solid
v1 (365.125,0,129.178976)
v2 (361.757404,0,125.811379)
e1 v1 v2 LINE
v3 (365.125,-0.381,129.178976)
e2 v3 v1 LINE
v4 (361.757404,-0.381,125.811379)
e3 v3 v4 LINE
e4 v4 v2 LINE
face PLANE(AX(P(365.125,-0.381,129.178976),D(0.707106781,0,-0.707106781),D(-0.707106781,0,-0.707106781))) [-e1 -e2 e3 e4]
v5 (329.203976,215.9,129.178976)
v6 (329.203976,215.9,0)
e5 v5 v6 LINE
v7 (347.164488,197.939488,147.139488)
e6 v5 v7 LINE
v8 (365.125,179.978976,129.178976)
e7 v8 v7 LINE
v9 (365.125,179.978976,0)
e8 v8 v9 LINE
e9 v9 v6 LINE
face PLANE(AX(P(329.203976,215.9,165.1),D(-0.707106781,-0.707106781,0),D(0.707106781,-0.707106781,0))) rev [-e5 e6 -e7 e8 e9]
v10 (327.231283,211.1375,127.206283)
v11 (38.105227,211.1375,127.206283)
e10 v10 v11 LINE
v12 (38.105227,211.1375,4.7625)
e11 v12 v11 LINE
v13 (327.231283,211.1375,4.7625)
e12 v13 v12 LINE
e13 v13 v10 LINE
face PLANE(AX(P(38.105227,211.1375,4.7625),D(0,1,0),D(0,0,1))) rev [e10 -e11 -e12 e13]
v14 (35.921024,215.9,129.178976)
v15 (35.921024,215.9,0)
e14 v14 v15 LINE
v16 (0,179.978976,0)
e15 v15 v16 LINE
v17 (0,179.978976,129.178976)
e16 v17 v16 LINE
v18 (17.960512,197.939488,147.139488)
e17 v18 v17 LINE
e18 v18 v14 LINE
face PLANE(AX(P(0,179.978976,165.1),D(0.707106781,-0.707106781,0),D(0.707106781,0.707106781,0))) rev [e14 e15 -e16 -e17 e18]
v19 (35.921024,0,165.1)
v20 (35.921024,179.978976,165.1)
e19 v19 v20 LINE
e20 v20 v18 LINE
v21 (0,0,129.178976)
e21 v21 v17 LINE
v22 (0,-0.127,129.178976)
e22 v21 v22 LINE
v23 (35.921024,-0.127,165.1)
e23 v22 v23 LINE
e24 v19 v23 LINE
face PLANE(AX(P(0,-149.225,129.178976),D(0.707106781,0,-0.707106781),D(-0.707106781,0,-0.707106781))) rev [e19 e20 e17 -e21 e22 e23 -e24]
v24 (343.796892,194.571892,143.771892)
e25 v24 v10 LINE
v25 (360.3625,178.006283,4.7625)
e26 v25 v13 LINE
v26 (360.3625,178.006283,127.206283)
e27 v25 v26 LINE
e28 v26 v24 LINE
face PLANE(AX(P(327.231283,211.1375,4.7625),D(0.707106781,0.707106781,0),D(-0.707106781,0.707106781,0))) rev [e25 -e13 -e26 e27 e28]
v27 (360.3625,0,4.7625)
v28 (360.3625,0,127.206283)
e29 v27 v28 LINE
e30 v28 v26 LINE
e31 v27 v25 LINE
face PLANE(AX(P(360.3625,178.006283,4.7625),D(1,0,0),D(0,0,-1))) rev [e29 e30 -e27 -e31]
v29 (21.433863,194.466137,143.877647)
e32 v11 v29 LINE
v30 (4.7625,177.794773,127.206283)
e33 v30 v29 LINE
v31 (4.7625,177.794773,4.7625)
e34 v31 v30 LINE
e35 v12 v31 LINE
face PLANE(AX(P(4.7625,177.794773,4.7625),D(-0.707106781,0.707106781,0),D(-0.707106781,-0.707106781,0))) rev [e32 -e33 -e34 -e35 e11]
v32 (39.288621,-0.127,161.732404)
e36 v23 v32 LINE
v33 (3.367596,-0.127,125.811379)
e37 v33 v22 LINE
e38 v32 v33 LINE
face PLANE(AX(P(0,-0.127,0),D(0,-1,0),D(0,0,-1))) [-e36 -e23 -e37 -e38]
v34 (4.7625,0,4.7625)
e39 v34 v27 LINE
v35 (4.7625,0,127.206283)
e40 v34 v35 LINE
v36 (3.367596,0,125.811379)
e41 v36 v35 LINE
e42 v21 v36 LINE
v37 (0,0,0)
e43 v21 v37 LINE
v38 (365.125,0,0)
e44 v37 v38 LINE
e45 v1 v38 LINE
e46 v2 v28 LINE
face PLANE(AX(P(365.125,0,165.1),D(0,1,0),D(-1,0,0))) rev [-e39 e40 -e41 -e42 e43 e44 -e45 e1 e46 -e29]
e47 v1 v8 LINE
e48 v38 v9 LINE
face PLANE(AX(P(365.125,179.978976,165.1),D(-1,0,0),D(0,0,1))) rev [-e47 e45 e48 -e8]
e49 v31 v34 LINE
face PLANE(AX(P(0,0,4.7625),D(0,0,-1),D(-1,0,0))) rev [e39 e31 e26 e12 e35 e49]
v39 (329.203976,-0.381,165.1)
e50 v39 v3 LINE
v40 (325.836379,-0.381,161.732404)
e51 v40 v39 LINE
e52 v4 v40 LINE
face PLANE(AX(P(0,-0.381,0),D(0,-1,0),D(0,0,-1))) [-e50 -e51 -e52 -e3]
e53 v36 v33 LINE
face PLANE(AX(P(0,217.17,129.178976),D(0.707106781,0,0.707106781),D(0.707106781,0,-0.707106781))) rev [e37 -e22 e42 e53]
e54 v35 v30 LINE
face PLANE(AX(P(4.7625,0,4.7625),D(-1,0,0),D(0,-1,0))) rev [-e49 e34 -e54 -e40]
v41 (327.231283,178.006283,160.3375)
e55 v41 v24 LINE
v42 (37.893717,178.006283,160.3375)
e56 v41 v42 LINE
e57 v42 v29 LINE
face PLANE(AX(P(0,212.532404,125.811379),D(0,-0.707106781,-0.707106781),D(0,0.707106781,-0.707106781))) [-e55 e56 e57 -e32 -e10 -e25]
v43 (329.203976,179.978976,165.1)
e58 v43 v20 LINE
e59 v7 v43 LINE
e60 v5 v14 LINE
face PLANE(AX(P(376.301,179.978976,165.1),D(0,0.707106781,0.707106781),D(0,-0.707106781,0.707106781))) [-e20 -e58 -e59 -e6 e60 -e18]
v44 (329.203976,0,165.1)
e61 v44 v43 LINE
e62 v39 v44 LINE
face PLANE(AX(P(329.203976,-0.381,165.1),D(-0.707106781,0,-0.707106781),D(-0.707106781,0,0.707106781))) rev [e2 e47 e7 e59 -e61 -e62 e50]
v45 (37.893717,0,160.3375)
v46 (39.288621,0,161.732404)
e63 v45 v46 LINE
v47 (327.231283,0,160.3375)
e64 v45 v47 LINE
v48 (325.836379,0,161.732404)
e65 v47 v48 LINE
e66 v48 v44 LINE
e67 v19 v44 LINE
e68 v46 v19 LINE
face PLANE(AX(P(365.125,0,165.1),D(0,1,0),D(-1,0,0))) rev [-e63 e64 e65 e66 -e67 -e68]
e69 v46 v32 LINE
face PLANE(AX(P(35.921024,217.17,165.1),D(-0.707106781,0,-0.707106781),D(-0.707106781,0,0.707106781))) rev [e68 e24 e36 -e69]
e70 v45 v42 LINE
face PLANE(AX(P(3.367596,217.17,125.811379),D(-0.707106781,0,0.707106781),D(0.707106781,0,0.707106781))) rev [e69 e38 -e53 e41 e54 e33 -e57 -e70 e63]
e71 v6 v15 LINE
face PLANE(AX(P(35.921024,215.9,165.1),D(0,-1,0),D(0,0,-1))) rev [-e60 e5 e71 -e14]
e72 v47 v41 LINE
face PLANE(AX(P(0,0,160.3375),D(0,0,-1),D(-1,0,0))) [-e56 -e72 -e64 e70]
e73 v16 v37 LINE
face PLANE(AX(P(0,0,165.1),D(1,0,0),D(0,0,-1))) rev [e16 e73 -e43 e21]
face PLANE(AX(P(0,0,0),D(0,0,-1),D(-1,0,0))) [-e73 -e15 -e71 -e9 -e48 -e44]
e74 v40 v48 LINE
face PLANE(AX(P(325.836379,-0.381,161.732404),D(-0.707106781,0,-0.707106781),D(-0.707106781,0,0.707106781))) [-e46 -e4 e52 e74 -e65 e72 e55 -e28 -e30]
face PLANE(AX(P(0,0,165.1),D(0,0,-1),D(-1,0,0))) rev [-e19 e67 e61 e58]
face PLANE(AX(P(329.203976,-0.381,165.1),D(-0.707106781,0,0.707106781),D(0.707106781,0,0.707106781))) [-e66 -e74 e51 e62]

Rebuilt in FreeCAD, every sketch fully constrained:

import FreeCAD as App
import Part
import Sketcher

V = App.Vector
Q = App.Units.Quantity


def add_polygon(sketch, points):
    """Adds a closed chain of lines whose ends are joined by coincident constraints."""
    first, n = sketch.GeometryCount, len(points)
    for a, b in zip(points, points[1:] + points[:1]):
        sketch.addGeometry(Part.LineSegment(App.Vector(*a, 0), App.Vector(*b, 0)), False)
    for i in range(n):
        sketch.addConstraint(Sketcher.Constraint("Coincident", first + i, 2, first + (i + 1) % n, 1))

doc = App.newDocument("Part")
params = doc.addObject("Spreadsheet::Sheet", "Params")
for row, (alias, value) in enumerate([
    ("sketch1_length", "2 in"),
    ("sketch1_width", "14.375 in"),
    ("pad1_length", "6.5 in"),
    ("sketch2_width", "14 in"),
    ("pocket1_length", "6.3125 in"),
    ("sketch3_length", "2 in"),
    ("sketch3_width", "14.375 in"),
    ("pad2_length", "0.1875 in"),
    ("sketch4_length", "2 in"),
    ("sketch5_length", "2 in"),
    ("sketch5_length2", "0.1875 in"),
    ("pad3_length", "14.375 in"),
    ("sketch6_length", "2 in"),
    ("pocket3_length", "14.375 in"),
    ("sketch7_length", "2 in"),
    ("pocket4_length", "14.375 in"),
    ("sketch8_length", "2 in"),
    ("sketch8_length2", "0.1875 in"),
    ("pad4_length", "0.05 in"),
    ("pad4_length2", "8.505 in"),
    ("sketch9_length", "2 in"),
    ("pocket5_length", "15.705 in"),
    ("sketch10_length", "2 in"),
    ("pocket6_length", "15.705 in"),
    ("sketch11_length", "2 in"),
    ("pocket7_length", "8.515 in"),
    ("sketch12_length", "2 in"),
    ("sketch12_length2", "0.1875 in"),
    ("pad5_length", "8.515 in"),
    ("sketch13_length", "2 in"),
    ("pocket8_length", "8.515 in"),
    ("sketch14_length", "2 in"),
    ("pocket9_length", "100 in"),
], start=1):
    params.set(f"A{row}", alias)
    params.set(f"B{row}", "=" + value)
    params.setAlias(f"B{row}", alias)

body = doc.addObject("PartDesign::Body", "Body")

# Sketch on XY plane
sketch1 = body.newObject("Sketcher::SketchObject", "Sketch")
sketch1.AttachmentSupport = (doc.getObject("XY_Plane"), [""])
sketch1.MapMode = "FlatFace"
add_polygon(sketch1, [(0, 180), (0, 0), (365, 0), (365, 180), (329, 216), (36, 216)])  # lines 0-5
sketch1.addConstraint(Sketcher.Constraint("Vertical", 0))
sketch1.addConstraint(Sketcher.Constraint("Horizontal", 1))
sketch1.addConstraint(Sketcher.Constraint("Vertical", 2))
sketch1.addConstraint(Sketcher.Constraint("Horizontal", 4))
sketch1.addConstraint(Sketcher.Constraint("Coincident", 0, 2, -1, 1))
sketch1.addConstraint(Sketcher.Constraint("Perpendicular", 3, 5))
sketch1.addConstraint(Sketcher.Constraint("Horizontal", 2, 2, 5, 2))
sketch1.addConstraint(Sketcher.Constraint("Equal", 3, 5))
sketch1.addConstraint(Sketcher.Constraint("Distance", 3, Q("2 in")))
sketch1.addConstraint(Sketcher.Constraint("DistanceY", -1, 1, 3, 2, Q("8.5 in")))
sketch1.addConstraint(Sketcher.Constraint("DistanceX", 1, 1, 1, 2, Q("14.375 in")))
sketch1.setExpression("Constraints[14]", "Params.sketch1_length")
sketch1.setExpression("Constraints[16]", "Params.sketch1_width")
pad1 = body.newObject("PartDesign::Pad", "Pad")
pad1.Profile = sketch1
pad1.setExpression("Length", "Params.pad1_length")

# Sketch on XY plane
sketch2 = body.newObject("Sketcher::SketchObject", "Sketch001")
sketch2.AttachmentSupport = (doc.getObject("XY_Plane"), [""])
sketch2.MapMode = "FlatFace"
sketch2.AttachmentOffset = App.Placement(V(0, 0, 6.5 * 25.4), App.Rotation())
add_polygon(sketch2, [(5, 178), (5, 0), (360, 0), (360, 178), (327, 211), (38, 211)])  # lines 0-5
sketch2.addConstraint(Sketcher.Constraint("Vertical", 0))
sketch2.addConstraint(Sketcher.Constraint("Horizontal", 1))
sketch2.addConstraint(Sketcher.Constraint("Vertical", 2))
sketch2.addConstraint(Sketcher.Constraint("Horizontal", 4))
sketch2.addConstraint(Sketcher.Constraint("PointOnObject", 0, 2, -1))
sketch2.addConstraint(Sketcher.Constraint("Perpendicular", 3, 5))
sketch2.addConstraint(Sketcher.Constraint("DistanceX", 1, 1, 1, 2, Q("14 in")))
sketch2.addConstraint(Sketcher.Constraint("Angle", 3, Q("135 deg")))
sketch2.addConstraint(Sketcher.Constraint("DistanceX", -1, 1, 0, 2, Q("0.1875 in")))
sketch2.addConstraint(Sketcher.Constraint("DistanceY", -1, 1, 3, 2, Q("8.3125 in")))
sketch2.addConstraint(Sketcher.Constraint("DistanceX", 4, 2, 4, 1, 289.126057))
sketch2.addConstraint(Sketcher.Constraint("DistanceY", 0, 2, 0, 1, 177.794773))
sketch2.setExpression("Constraints[12]", "Params.sketch2_width")
pocket1 = body.newObject("PartDesign::Pocket", "Pocket")
pocket1.Profile = sketch2
pocket1.setExpression("Length", "Params.pocket1_length")

# Sketch on XY plane
sketch3 = body.newObject("Sketcher::SketchObject", "Sketch002")
sketch3.AttachmentSupport = (doc.getObject("XY_Plane"), [""])
sketch3.MapMode = "FlatFace"
sketch3.AttachmentOffset = App.Placement(V(0, 0, 6.5 * 25.4), App.Rotation())
add_polygon(sketch3, [(0, 180), (0, 0), (365, 0), (365, 180), (329, 216), (36, 216)])  # lines 0-5
sketch3.addConstraint(Sketcher.Constraint("Vertical", 0))
sketch3.addConstraint(Sketcher.Constraint("Horizontal", 1))
sketch3.addConstraint(Sketcher.Constraint("Vertical", 2))
sketch3.addConstraint(Sketcher.Constraint("Horizontal", 4))
sketch3.addConstraint(Sketcher.Constraint("Coincident", 0, 2, -1, 1))
sketch3.addConstraint(Sketcher.Constraint("Perpendicular", 3, 5))
sketch3.addConstraint(Sketcher.Constraint("Horizontal", 2, 2, 5, 2))
sketch3.addConstraint(Sketcher.Constraint("Equal", 3, 5))
sketch3.addConstraint(Sketcher.Constraint("Distance", 3, Q("2 in")))
sketch3.addConstraint(Sketcher.Constraint("DistanceY", -1, 1, 3, 2, Q("8.5 in")))
sketch3.addConstraint(Sketcher.Constraint("DistanceX", 1, 1, 1, 2, Q("14.375 in")))
sketch3.setExpression("Constraints[14]", "Params.sketch3_length")
sketch3.setExpression("Constraints[16]", "Params.sketch3_width")
pad2 = body.newObject("PartDesign::Pad", "Pad001")
pad2.Profile = sketch3
pad2.setExpression("Length", "Params.pad2_length")
pad2.Reversed = True

# Sketch on YZ plane
sketch4 = body.newObject("Sketcher::SketchObject", "Sketch003")
sketch4.AttachmentSupport = (doc.getObject("YZ_Plane"), [""])
sketch4.MapMode = "FlatFace"
sketch4.AttachmentOffset = App.Placement(V(0, 0, 14.375 * 25.4), App.Rotation())
add_polygon(sketch4, [(180, 165), (216, 129), (216, 165)])  # lines 0-2
sketch4.addConstraint(Sketcher.Constraint("Vertical", 1))
sketch4.addConstraint(Sketcher.Constraint("Horizontal", 2))
sketch4.addConstraint(Sketcher.Constraint("Equal", 2, 1))
sketch4.addConstraint(Sketcher.Constraint("Distance", 0, Q("2 in")))
sketch4.addConstraint(Sketcher.Constraint("DistanceX", -1, 1, 0, 2, Q("8.5 in")))
sketch4.addConstraint(Sketcher.Constraint("DistanceY", -1, 1, 1, 2, Q("6.5 in")))
sketch4.setExpression("Constraints[6]", "Params.sketch4_length")
pocket2 = body.newObject("PartDesign::Pocket", "Pocket001")
pocket2.Profile = sketch4
pocket2.Type = "ThroughAll"
pocket2.Midplane = True

# Sketch on YZ plane
sketch5 = body.newObject("Sketcher::SketchObject", "Sketch004")
sketch5.AttachmentSupport = (doc.getObject("YZ_Plane"), [""])
sketch5.MapMode = "FlatFace"
sketch5.AttachmentOffset = App.Placement(V(0, 0, 14.375 * 25.4), App.Rotation())
add_polygon(sketch5, [(215.9, 129.2), (180, 165.1), (176.6, 161.7), (212.5, 125.8)])  # lines 0-3
sketch5.addConstraint(Sketcher.Constraint("Perpendicular", 0, 1))
sketch5.addConstraint(Sketcher.Constraint("Perpendicular", 1, 2))
sketch5.addConstraint(Sketcher.Constraint("Perpendicular", 2, 3))
sketch5.addConstraint(Sketcher.Constraint("Distance", 0, Q("2 in")))
sketch5.addConstraint(Sketcher.Constraint("Angle", 0, Q("135 deg")))
sketch5.addConstraint(Sketcher.Constraint("DistanceY", -1, 1, 0, 2, Q("6.5 in")))
sketch5.addConstraint(Sketcher.Constraint("DistanceX", -1, 1, 3, 2, Q("8.5 in")))
sketch5.addConstraint(Sketcher.Constraint("Distance", 1, Q("0.1875 in")))
sketch5.setExpression("Constraints[7]", "Params.sketch5_length")
sketch5.setExpression("Constraints[11]", "Params.sketch5_length2")
pad3 = body.newObject("PartDesign::Pad", "Pad002")
pad3.Profile = sketch5
pad3.setExpression("Length", "Params.pad3_length")
pad3.Reversed = True

# Sketch on XY plane
sketch6 = body.newObject("Sketcher::SketchObject", "Sketch005")
sketch6.AttachmentSupport = (doc.getObject("XY_Plane"), [""])
sketch6.MapMode = "FlatFace"
add_polygon(sketch6, [(365, 180), (329, 216), (365, 216)])  # lines 0-2
add_polygon(sketch6, [(0, 216), (36, 216), (0, 180)])  # lines 3-5
sketch6.addConstraint(Sketcher.Constraint("Horizontal", 1))
sketch6.addConstraint(Sketcher.Constraint("Vertical", 2))
sketch6.addConstraint(Sketcher.Constraint("Horizontal", 3))
sketch6.addConstraint(Sketcher.Constraint("Vertical", 5))
sketch6.addConstraint(Sketcher.Constraint("PointOnObject", 4, 2, -2))
sketch6.addConstraint(Sketcher.Constraint("Perpendicular", 0, 4))
sketch6.addConstraint(Sketcher.Constraint("Horizontal", 1, 2, 3, 2))
sketch6.addConstraint(Sketcher.Constraint("Horizontal", 2, 2, 4, 2))
sketch6.addConstraint(Sketcher.Constraint("Equal", 1, 3))
sketch6.addConstraint(Sketcher.Constraint("Distance", 0, Q("2 in")))
sketch6.addConstraint(Sketcher.Constraint("DistanceY", -1, 1, 0, 2, Q("8.5 in")))
sketch6.addConstraint(Sketcher.Constraint("DistanceX", -1, 1, 1, 2, Q("14.375 in")))
sketch6.setExpression("Constraints[15]", "Params.sketch6_length")
pocket3 = body.newObject("PartDesign::Pocket", "Pocket002")
pocket3.Profile = sketch6
pocket3.setExpression("Length", "Params.pocket3_length")
pocket3.Reversed = True

# Sketch on XZ plane
sketch7 = body.newObject("Sketcher::SketchObject", "Sketch006")
sketch7.AttachmentSupport = (doc.getObject("XZ_Plane"), [""])
sketch7.MapMode = "FlatFace"
sketch7.AttachmentOffset = App.Placement(V(0, 0, -8.5 * 25.4), App.Rotation())
add_polygon(sketch7, [(36, 165), (0, 129), (0, 165)])  # lines 0-2
sketch7.addConstraint(Sketcher.Constraint("Vertical", 1))
sketch7.addConstraint(Sketcher.Constraint("Horizontal", 2))
sketch7.addConstraint(Sketcher.Constraint("PointOnObject", 0, 2, -2))
sketch7.addConstraint(Sketcher.Constraint("Equal", 2, 1))
sketch7.addConstraint(Sketcher.Constraint("Distance", 0, Q("2 in")))
sketch7.addConstraint(Sketcher.Constraint("DistanceY", -1, 1, 1, 2, Q("6.5 in")))
sketch7.setExpression("Constraints[7]", "Params.sketch7_length")
pocket4 = body.newObject("PartDesign::Pocket", "Pocket003")
pocket4.Profile = sketch7
pocket4.setExpression("Length", "Params.pocket4_length")
pocket4.Reversed = True

# Sketch on XZ plane
sketch8 = body.newObject("Sketcher::SketchObject", "Sketch007")
sketch8.AttachmentSupport = (doc.getObject("XZ_Plane"), [""])
sketch8.MapMode = "FlatFace"
sketch8.AttachmentOffset = App.Placement(V(0, 0, -8.5 * 25.4), App.Rotation())
add_polygon(sketch8, [(0, 129.2), (35.9, 165.1), (39.3, 161.7), (3.4, 125.8)])  # lines 0-3
sketch8.addConstraint(Sketcher.Constraint("PointOnObject", 3, 2, -2))
sketch8.addConstraint(Sketcher.Constraint("Perpendicular", 0, 1))
sketch8.addConstraint(Sketcher.Constraint("Perpendicular", 1, 2))
sketch8.addConstraint(Sketcher.Constraint("Perpendicular", 2, 3))
sketch8.addConstraint(Sketcher.Constraint("Distance", 0, Q("2 in")))
sketch8.addConstraint(Sketcher.Constraint("Angle", 0, Q("45 deg")))
sketch8.addConstraint(Sketcher.Constraint("DistanceY", -1, 1, 0, 2, Q("6.5 in")))
sketch8.addConstraint(Sketcher.Constraint("Distance", 1, Q("0.1875 in")))
sketch8.setExpression("Constraints[8]", "Params.sketch8_length")
sketch8.setExpression("Constraints[11]", "Params.sketch8_length2")
pad4 = body.newObject("PartDesign::Pad", "Pad003")
pad4.Profile = sketch8
pad4.Type = "TwoLengths"
pad4.setExpression("Length", "Params.pad4_length")
pad4.setExpression("Length2", "Params.pad4_length2")
pad4.Reversed = True

# Sketch on YZ plane
sketch9 = body.newObject("Sketcher::SketchObject", "Sketch008")
sketch9.AttachmentSupport = (doc.getObject("YZ_Plane"), [""])
sketch9.MapMode = "FlatFace"
sketch9.AttachmentOffset = App.Placement(V(0, 0, 14.375 * 25.4), App.Rotation())
add_polygon(sketch9, [(180, 165.1), (215.9, 129.2), (215.9, 125.1), (220.6, 125.1), (220.6, 193.2), (180, 185.7)])  # lines 0-5
sketch9.addConstraint(Sketcher.Constraint("Vertical", 1))
sketch9.addConstraint(Sketcher.Constraint("Horizontal", 2))
sketch9.addConstraint(Sketcher.Constraint("Vertical", 3))
sketch9.addConstraint(Sketcher.Constraint("Vertical", 5))
sketch9.addConstraint(Sketcher.Constraint("Distance", 0, Q("2 in")))
sketch9.addConstraint(Sketcher.Constraint("Angle", 0, Q("-45 deg")))
sketch9.addConstraint(Sketcher.Constraint("DistanceX", -1, 1, 0, 2, Q("8.5 in")))
sketch9.addConstraint(Sketcher.Constraint("DistanceY", -1, 1, 5, 2, Q("6.5 in")))
sketch9.addConstraint(Sketcher.Constraint("DistanceX", 2, 1, 2, 2, 4.701518))
sketch9.addConstraint(Sketcher.Constraint("DistanceY", 1, 2, 1, 1, 4.118684))
sketch9.addConstraint(Sketcher.Constraint("DistanceY", 3, 1, 3, 2, 68.179967))
sketch9.addConstraint(Sketcher.Constraint("DistanceY", 5, 2, 5, 1, 20.619207))
sketch9.setExpression("Constraints[10]", "Params.sketch9_length")
pocket5 = body.newObject("PartDesign::Pocket", "Pocket004")
pocket5.Profile = sketch9
pocket5.setExpression("Length", "Params.pocket5_length")

# Sketch on XY plane
sketch10 = body.newObject("Sketcher::SketchObject", "Sketch009")
sketch10.AttachmentSupport = (doc.getObject("XY_Plane"), [""])
sketch10.MapMode = "FlatFace"
add_polygon(sketch10, [(36, 216), (0, 180), (-20, 200), (16, 236)])  # lines 0-3
sketch10.addConstraint(Sketcher.Constraint("PointOnObject", 0, 2, -2))
sketch10.addConstraint(Sketcher.Constraint("Perpendicular", 0, 1))
sketch10.addConstraint(Sketcher.Constraint("Perpendicular", 1, 2))
sketch10.addConstraint(Sketcher.Constraint("Perpendicular", 2, 3))
sketch10.addConstraint(Sketcher.Constraint("Distance", 0, Q("2 in")))
sketch10.addConstraint(Sketcher.Constraint("Angle", 0, Q("-135 deg")))
sketch10.addConstraint(Sketcher.Constraint("DistanceY", -1, 1, 3, 2, Q("8.5 in")))
sketch10.addConstraint(Sketcher.Constraint("DistanceY", 0, 2, 2, 2, 56.296099))
sketch10.setExpression("Constraints[8]", "Params.sketch10_length")
pocket6 = body.newObject("PartDesign::Pocket", "Pocket005")
pocket6.Profile = sketch10
pocket6.setExpression("Length", "Params.pocket6_length")
pocket6.Reversed = True

# Sketch on XZ plane
sketch11 = body.newObject("Sketcher::SketchObject", "Sketch010")
sketch11.AttachmentSupport = (doc.getObject("XZ_Plane"), [""])
sketch11.MapMode = "FlatFace"
sketch11.AttachmentOffset = App.Placement(V(0, 0, -8.5 * 25.4), App.Rotation())
add_polygon(sketch11, [(365, 129), (329, 165), (351, 187), (387, 151)])  # lines 0-3
sketch11.addConstraint(Sketcher.Constraint("Perpendicular", 0, 1))
sketch11.addConstraint(Sketcher.Constraint("Perpendicular", 1, 2))
sketch11.addConstraint(Sketcher.Constraint("Perpendicular", 2, 3))
sketch11.addConstraint(Sketcher.Constraint("Distance", 0, Q("2 in")))
sketch11.addConstraint(Sketcher.Constraint("Angle", 0, Q("135 deg")))
sketch11.addConstraint(Sketcher.Constraint("DistanceY", -1, 1, 0, 2, Q("6.5 in")))
sketch11.addConstraint(Sketcher.Constraint("DistanceX", -1, 1, 3, 2, Q("14.375 in")))
sketch11.addConstraint(Sketcher.Constraint("Distance", 1, 31.508541))
sketch11.setExpression("Constraints[7]", "Params.sketch11_length")
pocket7 = body.newObject("PartDesign::Pocket", "Pocket006")
pocket7.Profile = sketch11
pocket7.setExpression("Length", "Params.pocket7_length")
pocket7.Reversed = True

# Sketch on XZ plane
sketch12 = body.newObject("Sketcher::SketchObject", "Sketch011")
sketch12.AttachmentSupport = (doc.getObject("XZ_Plane"), [""])
sketch12.MapMode = "FlatFace"
sketch12.AttachmentOffset = App.Placement(V(0, 0, -8.5 * 25.4), App.Rotation())
add_polygon(sketch12, [(329.2, 165.1), (365.1, 129.2), (361.8, 125.8), (325.8, 161.7)])  # lines 0-3
sketch12.addConstraint(Sketcher.Constraint("Perpendicular", 0, 1))
sketch12.addConstraint(Sketcher.Constraint("Perpendicular", 1, 2))
sketch12.addConstraint(Sketcher.Constraint("Perpendicular", 2, 3))
sketch12.addConstraint(Sketcher.Constraint("Distance", 0, Q("2 in")))
sketch12.addConstraint(Sketcher.Constraint("Angle", 0, Q("-45 deg")))
sketch12.addConstraint(Sketcher.Constraint("DistanceY", -1, 1, 3, 2, Q("6.5 in")))
sketch12.addConstraint(Sketcher.Constraint("Distance", 1, Q("0.1875 in")))
sketch12.addConstraint(Sketcher.Constraint("DistanceX", -1, 1, 0, 2, Q("14.375 in")))
sketch12.setExpression("Constraints[7]", "Params.sketch12_length")
sketch12.setExpression("Constraints[10]", "Params.sketch12_length2")
pad5 = body.newObject("PartDesign::Pad", "Pad004")
pad5.Profile = sketch12
pad5.setExpression("Length", "Params.pad5_length")

# Sketch on XY plane
sketch13 = body.newObject("Sketcher::SketchObject", "Sketch012")
sketch13.AttachmentSupport = (doc.getObject("XY_Plane"), [""])
sketch13.MapMode = "FlatFace"
add_polygon(sketch13, [(365, 180), (329, 216), (357, 244), (393, 208)])  # lines 0-3
sketch13.addConstraint(Sketcher.Constraint("Perpendicular", 0, 1))
sketch13.addConstraint(Sketcher.Constraint("Perpendicular", 1, 2))
sketch13.addConstraint(Sketcher.Constraint("Perpendicular", 2, 3))
sketch13.addConstraint(Sketcher.Constraint("Distance", 0, Q("2 in")))
sketch13.addConstraint(Sketcher.Constraint("Angle", 0, Q("135 deg")))
sketch13.addConstraint(Sketcher.Constraint("DistanceY", -1, 1, 0, 2, Q("8.5 in")))
sketch13.addConstraint(Sketcher.Constraint("DistanceX", -1, 1, 3, 2, Q("14.375 in")))
sketch13.addConstraint(Sketcher.Constraint("DistanceX", 0, 2, 2, 2, 63.875132))
sketch13.setExpression("Constraints[7]", "Params.sketch13_length")
pocket8 = body.newObject("PartDesign::Pocket", "Pocket007")
pocket8.Profile = sketch13
pocket8.setExpression("Length", "Params.pocket8_length")
pocket8.Reversed = True

# Sketch on YZ plane
sketch14 = body.newObject("Sketcher::SketchObject", "Sketch013")
sketch14.AttachmentSupport = (doc.getObject("YZ_Plane"), [""])
sketch14.MapMode = "FlatFace"
add_polygon(sketch14, [(216, 129), (180, 165), (200, 186), (236, 150)])  # lines 0-3
sketch14.addConstraint(Sketcher.Constraint("Perpendicular", 0, 1))
sketch14.addConstraint(Sketcher.Constraint("Perpendicular", 1, 2))
sketch14.addConstraint(Sketcher.Constraint("Perpendicular", 2, 3))
sketch14.addConstraint(Sketcher.Constraint("Distance", 0, Q("2 in")))
sketch14.addConstraint(Sketcher.Constraint("Angle", 0, Q("135 deg")))
sketch14.addConstraint(Sketcher.Constraint("DistanceY", -1, 1, 0, 2, Q("6.5 in")))
sketch14.addConstraint(Sketcher.Constraint("DistanceX", -1, 1, 3, 2, Q("8.5 in")))
sketch14.addConstraint(Sketcher.Constraint("Distance", 1, 28.935761))
sketch14.setExpression("Constraints[7]", "Params.sketch14_length")
pocket9 = body.newObject("PartDesign::Pocket", "Pocket008")
pocket9.Profile = sketch14
pocket9.setExpression("Length", "Params.pocket9_length")
pocket9.Reversed = True

doc.recompute()
